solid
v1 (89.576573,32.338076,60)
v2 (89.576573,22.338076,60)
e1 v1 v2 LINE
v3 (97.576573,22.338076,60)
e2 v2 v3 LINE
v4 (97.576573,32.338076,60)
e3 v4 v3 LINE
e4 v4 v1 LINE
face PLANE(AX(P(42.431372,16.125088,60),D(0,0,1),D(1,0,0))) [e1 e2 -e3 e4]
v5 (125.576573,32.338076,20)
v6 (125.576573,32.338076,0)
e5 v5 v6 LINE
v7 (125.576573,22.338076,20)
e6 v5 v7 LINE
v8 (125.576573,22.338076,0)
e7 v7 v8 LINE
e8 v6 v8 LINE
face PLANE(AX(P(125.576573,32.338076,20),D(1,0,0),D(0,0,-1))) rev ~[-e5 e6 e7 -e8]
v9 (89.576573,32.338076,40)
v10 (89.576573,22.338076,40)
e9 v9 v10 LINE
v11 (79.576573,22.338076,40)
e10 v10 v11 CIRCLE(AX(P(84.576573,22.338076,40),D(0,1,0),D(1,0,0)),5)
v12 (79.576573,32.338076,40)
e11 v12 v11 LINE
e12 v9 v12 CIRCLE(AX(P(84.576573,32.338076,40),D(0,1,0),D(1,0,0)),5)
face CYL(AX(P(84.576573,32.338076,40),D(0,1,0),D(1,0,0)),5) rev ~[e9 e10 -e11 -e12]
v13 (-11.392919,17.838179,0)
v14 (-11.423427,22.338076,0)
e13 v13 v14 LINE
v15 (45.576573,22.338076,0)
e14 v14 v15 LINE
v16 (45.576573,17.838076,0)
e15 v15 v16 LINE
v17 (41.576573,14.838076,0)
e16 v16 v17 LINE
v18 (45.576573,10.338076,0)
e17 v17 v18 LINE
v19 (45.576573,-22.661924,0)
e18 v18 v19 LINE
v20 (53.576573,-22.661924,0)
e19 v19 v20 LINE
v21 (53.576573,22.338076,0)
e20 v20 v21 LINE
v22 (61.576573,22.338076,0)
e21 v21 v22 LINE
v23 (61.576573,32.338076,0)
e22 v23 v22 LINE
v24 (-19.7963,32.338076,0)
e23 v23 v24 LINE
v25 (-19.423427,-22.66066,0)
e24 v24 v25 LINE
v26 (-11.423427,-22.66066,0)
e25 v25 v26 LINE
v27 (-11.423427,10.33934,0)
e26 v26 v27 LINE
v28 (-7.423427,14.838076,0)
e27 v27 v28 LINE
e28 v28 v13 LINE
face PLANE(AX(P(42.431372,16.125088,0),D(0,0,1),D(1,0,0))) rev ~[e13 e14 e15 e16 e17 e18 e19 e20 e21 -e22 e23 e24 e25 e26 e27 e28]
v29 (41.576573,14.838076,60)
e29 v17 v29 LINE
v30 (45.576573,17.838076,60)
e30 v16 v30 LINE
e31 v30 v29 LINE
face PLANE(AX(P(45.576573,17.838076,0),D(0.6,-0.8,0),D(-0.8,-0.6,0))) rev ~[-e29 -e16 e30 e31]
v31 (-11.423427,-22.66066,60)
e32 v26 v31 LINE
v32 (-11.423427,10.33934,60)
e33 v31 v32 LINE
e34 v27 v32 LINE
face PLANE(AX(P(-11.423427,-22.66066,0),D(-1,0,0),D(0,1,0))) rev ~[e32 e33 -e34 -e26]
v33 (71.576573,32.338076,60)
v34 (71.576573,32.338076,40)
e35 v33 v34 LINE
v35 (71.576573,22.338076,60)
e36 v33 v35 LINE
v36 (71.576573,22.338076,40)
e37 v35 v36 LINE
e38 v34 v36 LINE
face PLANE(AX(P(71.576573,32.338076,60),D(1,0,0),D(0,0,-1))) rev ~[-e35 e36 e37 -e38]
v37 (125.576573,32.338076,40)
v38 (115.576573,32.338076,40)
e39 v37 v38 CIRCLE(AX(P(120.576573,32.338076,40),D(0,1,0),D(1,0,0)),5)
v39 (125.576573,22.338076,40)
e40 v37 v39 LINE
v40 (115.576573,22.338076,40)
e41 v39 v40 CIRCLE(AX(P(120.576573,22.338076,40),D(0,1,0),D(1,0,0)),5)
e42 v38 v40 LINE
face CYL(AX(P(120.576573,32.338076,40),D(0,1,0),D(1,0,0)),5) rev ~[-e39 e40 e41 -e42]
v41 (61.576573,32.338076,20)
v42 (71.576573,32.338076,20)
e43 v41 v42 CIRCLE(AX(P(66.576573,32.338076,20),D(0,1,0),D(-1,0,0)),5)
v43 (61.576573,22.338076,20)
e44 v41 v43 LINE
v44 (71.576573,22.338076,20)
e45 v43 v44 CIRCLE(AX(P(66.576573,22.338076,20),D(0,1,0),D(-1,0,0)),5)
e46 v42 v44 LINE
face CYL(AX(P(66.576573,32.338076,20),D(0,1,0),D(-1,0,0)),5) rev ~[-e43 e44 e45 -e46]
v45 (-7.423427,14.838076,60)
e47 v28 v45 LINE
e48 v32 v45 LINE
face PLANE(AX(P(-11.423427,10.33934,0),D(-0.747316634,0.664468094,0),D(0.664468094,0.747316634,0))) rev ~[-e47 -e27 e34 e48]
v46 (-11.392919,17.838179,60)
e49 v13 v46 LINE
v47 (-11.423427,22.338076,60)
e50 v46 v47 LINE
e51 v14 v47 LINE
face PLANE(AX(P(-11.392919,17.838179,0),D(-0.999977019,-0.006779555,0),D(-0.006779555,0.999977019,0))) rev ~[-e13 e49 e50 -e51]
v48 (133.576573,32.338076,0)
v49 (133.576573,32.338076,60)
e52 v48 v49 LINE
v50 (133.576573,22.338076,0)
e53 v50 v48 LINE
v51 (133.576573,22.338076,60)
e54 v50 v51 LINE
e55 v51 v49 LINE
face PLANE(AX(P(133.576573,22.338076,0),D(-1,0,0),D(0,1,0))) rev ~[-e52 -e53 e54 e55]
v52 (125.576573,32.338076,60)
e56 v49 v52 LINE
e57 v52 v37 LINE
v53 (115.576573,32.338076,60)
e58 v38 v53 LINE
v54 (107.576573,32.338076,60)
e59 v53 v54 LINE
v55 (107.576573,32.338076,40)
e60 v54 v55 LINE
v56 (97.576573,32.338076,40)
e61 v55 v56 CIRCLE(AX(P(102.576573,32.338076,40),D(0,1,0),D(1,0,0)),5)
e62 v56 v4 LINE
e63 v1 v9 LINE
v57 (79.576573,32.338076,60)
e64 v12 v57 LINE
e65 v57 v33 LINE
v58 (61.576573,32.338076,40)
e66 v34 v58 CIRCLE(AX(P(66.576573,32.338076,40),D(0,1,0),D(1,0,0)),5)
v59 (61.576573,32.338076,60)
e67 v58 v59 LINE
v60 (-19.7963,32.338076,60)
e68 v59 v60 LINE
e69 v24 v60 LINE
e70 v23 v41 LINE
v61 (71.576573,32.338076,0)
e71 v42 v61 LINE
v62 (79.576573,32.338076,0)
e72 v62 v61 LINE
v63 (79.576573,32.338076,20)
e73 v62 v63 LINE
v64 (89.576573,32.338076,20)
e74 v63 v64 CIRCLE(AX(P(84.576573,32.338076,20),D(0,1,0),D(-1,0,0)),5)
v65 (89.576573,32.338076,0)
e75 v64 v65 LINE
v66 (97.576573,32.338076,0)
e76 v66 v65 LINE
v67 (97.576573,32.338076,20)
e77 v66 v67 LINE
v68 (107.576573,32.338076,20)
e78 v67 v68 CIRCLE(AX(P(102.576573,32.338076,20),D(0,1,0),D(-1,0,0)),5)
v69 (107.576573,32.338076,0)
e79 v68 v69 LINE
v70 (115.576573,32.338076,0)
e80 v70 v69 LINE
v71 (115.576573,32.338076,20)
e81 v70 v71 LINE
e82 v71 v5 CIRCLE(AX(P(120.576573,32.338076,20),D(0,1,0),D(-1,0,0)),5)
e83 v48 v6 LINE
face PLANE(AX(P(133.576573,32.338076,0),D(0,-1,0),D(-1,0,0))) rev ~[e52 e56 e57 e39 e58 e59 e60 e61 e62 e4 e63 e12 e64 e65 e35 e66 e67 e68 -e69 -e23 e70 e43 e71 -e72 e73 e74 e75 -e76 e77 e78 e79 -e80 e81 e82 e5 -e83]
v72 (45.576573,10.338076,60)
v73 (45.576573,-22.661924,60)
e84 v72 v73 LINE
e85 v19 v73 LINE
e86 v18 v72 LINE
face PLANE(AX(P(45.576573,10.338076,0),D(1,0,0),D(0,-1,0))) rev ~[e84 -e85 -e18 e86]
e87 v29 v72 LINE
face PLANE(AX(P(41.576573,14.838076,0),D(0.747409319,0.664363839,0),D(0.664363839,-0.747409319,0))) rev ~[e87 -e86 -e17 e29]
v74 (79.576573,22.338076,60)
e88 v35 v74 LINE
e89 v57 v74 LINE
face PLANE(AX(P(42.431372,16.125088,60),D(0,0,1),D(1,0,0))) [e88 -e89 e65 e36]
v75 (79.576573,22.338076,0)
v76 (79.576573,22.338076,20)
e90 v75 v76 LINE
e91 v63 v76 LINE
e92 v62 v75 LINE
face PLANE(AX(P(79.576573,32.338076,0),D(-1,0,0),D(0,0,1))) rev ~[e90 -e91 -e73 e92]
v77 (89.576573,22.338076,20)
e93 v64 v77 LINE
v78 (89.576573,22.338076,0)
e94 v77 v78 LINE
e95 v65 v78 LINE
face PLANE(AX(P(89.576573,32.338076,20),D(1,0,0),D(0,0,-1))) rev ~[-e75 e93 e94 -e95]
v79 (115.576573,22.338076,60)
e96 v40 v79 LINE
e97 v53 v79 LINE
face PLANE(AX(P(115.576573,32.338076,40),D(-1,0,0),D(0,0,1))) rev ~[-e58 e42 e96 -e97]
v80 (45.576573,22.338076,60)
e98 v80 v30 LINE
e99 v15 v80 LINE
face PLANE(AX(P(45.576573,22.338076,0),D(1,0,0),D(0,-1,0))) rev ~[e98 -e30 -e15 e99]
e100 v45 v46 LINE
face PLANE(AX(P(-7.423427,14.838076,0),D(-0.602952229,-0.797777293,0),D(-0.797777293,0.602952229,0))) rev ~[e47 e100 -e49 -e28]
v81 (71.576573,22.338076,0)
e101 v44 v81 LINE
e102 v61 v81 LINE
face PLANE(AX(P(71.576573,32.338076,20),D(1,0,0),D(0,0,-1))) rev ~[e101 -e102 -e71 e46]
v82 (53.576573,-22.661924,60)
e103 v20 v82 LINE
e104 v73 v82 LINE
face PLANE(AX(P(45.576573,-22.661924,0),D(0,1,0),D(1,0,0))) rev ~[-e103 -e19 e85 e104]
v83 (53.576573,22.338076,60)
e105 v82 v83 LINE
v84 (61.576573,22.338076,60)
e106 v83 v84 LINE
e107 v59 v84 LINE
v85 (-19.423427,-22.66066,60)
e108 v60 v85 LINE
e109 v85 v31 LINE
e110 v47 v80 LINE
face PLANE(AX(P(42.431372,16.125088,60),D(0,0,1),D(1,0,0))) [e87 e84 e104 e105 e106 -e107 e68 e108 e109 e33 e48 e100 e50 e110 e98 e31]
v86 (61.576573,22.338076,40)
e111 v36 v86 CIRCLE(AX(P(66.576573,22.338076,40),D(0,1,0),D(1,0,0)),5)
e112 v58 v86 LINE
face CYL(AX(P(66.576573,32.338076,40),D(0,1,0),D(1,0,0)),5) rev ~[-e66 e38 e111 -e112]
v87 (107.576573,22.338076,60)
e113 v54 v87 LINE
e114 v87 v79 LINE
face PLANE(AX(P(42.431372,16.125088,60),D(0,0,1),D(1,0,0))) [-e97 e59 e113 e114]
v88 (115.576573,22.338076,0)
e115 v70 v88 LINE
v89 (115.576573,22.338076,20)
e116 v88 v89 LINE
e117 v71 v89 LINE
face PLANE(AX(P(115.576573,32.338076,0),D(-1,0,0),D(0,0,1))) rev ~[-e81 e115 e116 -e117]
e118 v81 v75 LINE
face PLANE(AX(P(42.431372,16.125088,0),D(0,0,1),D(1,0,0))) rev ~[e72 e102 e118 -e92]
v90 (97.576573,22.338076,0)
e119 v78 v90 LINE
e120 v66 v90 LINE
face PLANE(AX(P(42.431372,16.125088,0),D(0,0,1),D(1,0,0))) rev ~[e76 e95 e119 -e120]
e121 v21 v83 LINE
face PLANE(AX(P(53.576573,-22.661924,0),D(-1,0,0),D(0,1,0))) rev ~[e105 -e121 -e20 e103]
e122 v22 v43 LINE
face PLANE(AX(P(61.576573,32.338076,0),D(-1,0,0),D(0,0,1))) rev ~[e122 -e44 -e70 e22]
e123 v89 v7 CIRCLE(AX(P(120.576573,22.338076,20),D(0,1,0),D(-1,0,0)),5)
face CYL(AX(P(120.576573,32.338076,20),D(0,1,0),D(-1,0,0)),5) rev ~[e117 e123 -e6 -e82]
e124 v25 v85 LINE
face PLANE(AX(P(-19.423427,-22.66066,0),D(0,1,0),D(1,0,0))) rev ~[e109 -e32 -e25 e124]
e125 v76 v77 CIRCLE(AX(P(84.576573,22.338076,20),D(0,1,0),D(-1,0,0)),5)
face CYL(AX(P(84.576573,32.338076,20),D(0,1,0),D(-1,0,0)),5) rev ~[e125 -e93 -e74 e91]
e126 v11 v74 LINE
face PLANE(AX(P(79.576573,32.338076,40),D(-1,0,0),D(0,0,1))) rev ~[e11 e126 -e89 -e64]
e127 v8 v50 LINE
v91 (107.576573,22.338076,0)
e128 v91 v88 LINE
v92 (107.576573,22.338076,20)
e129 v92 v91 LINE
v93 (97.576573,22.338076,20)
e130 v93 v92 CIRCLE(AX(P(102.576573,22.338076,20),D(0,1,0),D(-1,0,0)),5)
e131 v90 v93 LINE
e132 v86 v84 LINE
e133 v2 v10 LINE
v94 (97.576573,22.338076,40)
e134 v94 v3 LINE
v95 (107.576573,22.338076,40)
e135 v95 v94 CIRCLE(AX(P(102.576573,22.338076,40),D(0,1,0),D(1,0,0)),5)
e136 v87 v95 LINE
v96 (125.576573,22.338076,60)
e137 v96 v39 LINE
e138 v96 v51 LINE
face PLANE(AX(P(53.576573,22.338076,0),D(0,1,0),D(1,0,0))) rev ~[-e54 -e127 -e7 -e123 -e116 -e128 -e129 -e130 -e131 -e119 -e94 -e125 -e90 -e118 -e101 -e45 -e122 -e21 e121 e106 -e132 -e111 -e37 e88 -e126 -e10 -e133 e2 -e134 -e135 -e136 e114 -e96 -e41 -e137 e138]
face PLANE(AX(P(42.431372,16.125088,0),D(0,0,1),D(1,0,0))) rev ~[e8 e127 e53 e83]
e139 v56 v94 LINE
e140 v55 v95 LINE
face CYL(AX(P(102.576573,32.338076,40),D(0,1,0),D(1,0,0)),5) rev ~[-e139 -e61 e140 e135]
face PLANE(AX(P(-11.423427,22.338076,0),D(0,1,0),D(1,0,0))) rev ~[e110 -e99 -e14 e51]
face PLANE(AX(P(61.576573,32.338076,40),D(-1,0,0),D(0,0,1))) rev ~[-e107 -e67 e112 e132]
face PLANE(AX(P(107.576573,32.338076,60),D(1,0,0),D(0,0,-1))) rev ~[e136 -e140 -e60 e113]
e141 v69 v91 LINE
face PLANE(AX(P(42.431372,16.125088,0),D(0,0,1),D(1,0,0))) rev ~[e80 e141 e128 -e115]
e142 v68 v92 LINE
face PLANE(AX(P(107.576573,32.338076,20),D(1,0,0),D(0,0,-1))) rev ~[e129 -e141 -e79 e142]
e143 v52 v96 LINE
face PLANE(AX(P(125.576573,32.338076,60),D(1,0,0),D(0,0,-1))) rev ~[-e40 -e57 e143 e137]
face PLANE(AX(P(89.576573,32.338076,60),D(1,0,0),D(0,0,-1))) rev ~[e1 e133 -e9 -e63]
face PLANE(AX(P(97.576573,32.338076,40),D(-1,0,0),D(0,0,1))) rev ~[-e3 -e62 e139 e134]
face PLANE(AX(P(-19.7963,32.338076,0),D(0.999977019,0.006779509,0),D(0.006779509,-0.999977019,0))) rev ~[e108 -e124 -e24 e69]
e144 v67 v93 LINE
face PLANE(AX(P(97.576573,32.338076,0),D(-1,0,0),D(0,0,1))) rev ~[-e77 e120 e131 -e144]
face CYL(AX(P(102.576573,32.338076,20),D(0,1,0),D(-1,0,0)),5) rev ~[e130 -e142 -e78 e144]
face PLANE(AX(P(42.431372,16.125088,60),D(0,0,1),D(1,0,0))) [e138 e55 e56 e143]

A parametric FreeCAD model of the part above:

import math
import FreeCAD as App
import Part
import Sketcher

doc = App.newDocument("Part")
params = doc.addObject("Spreadsheet::Sheet", "Params")
for row, (alias, value) in enumerate([
    ("sketch1_width", "8 mm"),
    ("sketch1_width2", "57 mm"),
    ("sketch1_width3", "80 mm"),
    ("sketch1_height", "33 mm"),
    ("sketch1_height2", "45 mm"),
    ("pad1_length", "60 mm"),
    ("sketch2_radius", "5 mm"),
    ("sketch2_height", "20 mm"),
    ("pocket1_length", "11 mm"),
], start=1):
    params.set(f"A{row}", alias)
    params.set(f"B{row}", "=" + value)
    params.setAlias(f"B{row}", alias)

body = doc.addObject("PartDesign::Body", "Body")

sketch1 = body.newObject("Sketcher::SketchObject", "Sketch")
sketch1.AttachmentSupport = (doc.getObject("XY_Plane"), [""])
sketch1.MapMode = "FlatFace"
sketch1.addGeometry([
    Part.LineSegment(App.Vector(-19.8, 32.3, 0), App.Vector(-19.4, -22.7, 0)),
    Part.LineSegment(App.Vector(-19.4, -22.7, 0), App.Vector(-11.4, -22.7, 0)),
    Part.LineSegment(App.Vector(-11.4, -22.7, 0), App.Vector(-11.4, 10.3, 0)),
    Part.LineSegment(App.Vector(-11.4, 10.3, 0), App.Vector(-7.4, 14.8, 0)),
    Part.LineSegment(App.Vector(-7.4, 14.8, 0), App.Vector(-11.4, 17.8, 0)),
    Part.LineSegment(App.Vector(-11.4, 17.8, 0), App.Vector(-11.4, 22.3, 0)),
    Part.LineSegment(App.Vector(-11.4, 22.3, 0), App.Vector(45.6, 22.3, 0)),
    Part.LineSegment(App.Vector(45.6, 22.3, 0), App.Vector(45.6, 17.8, 0)),
    Part.LineSegment(App.Vector(45.6, 17.8, 0), App.Vector(41.6, 14.8, 0)),
    Part.LineSegment(App.Vector(41.6, 14.8, 0), App.Vector(45.6, 10.3, 0)),
    Part.LineSegment(App.Vector(45.6, 10.3, 0), App.Vector(45.6, -22.7, 0)),
    Part.LineSegment(App.Vector(45.6, -22.7, 0), App.Vector(53.6, -22.7, 0)),
    Part.LineSegment(App.Vector(53.6, -22.7, 0), App.Vector(53.6, 22.3, 0)),
    Part.LineSegment(App.Vector(53.6, 22.3, 0), App.Vector(133.6, 22.3, 0)),
    Part.LineSegment(App.Vector(133.6, 22.3, 0), App.Vector(133.6, 32.3, 0)),
    Part.LineSegment(App.Vector(133.6, 32.3, 0), App.Vector(-19.8, 32.3, 0)),
], False)
sketch1.addConstraint([
    Sketcher.Constraint("Coincident", 0, 2, 1, 1),
    Sketcher.Constraint("Coincident", 1, 2, 2, 1),
    Sketcher.Constraint("Coincident", 2, 2, 3, 1),
    Sketcher.Constraint("Coincident", 3, 2, 4, 1),
    Sketcher.Constraint("Coincident", 4, 2, 5, 1),
    Sketcher.Constraint("Coincident", 5, 2, 6, 1),
    Sketcher.Constraint("Coincident", 6, 2, 7, 1),
    Sketcher.Constraint("Coincident", 7, 2, 8, 1),
    Sketcher.Constraint("Coincident", 8, 2, 9, 1),
    Sketcher.Constraint("Coincident", 9, 2, 10, 1),
    Sketcher.Constraint("Coincident", 10, 2, 11, 1),
    Sketcher.Constraint("Coincident", 11, 2, 12, 1),
    Sketcher.Constraint("Coincident", 12, 2, 13, 1),
    Sketcher.Constraint("Coincident", 13, 2, 14, 1),
    Sketcher.Constraint("Coincident", 14, 2, 15, 1),
    Sketcher.Constraint("Coincident", 15, 2, 0, 1),
    Sketcher.Constraint("Horizontal", 1),
    Sketcher.Constraint("Vertical", 2),
    Sketcher.Constraint("Horizontal", 6),
    Sketcher.Constraint("Vertical", 7),
    Sketcher.Constraint("Vertical", 10),
    Sketcher.Constraint("Horizontal", 11),
    Sketcher.Constraint("Vertical", 12),
    Sketcher.Constraint("Horizontal", 13),
    Sketcher.Constraint("Vertical", 14),
    Sketcher.Constraint("Horizontal", 15),
    Sketcher.Constraint("Parallel", 0, 5),
    Sketcher.Constraint("Horizontal", 3, 2, 8, 2),
    Sketcher.Constraint("Horizontal", 6, 2, 12, 2),
    Sketcher.Constraint("Vertical", 2, 2, 5, 2),
    Sketcher.Constraint("Vertical", 7, 2, 9, 2),
    Sketcher.Constraint("Equal", 1, 11),
    Sketcher.Constraint("Equal", 2, 10),
    Sketcher.Constraint("DistanceX", 1, 1, 1, 2, 8.0),
    Sketcher.Constraint("DistanceX", 6, 1, 6, 2, 57.0),
    Sketcher.Constraint("DistanceX", 13, 1, 13, 2, 80.0),
    Sketcher.Constraint("DistanceY", 2, 1, 2, 2, 33.0),
    Sketcher.Constraint("DistanceY", 12, 1, 12, 2, 45.0),
    Sketcher.Constraint("DistanceY", 14, 1, 14, 2, 10.0),
    Sketcher.Constraint("Distance", 0, 55.0),
    Sketcher.Constraint("Distance", 8, 5.0),
    Sketcher.Constraint("DistanceY", 7, 2, 7, 1, 4.5),
    Sketcher.Constraint("DistanceX", 2, 2, 3, 2, 4.0),
    Sketcher.Constraint("DistanceY", 3, 2, 7, 2, 3.0),
    Sketcher.Constraint("Distance", 5, 4.5),
    Sketcher.Constraint("DistanceX", 15, 2, -1, 1, 19.7963),
    Sketcher.Constraint("Distance", 4, 4.975689),
    Sketcher.Constraint("DistanceY", 0, 2, -1, 1, 22.66066),
])
sketch1.setExpression("Constraints[33]", "Params.sketch1_width")
sketch1.setExpression("Constraints[34]", "Params.sketch1_width2")
sketch1.setExpression("Constraints[35]", "Params.sketch1_width3")
sketch1.setExpression("Constraints[36]", "Params.sketch1_height")
sketch1.setExpression("Constraints[37]", "Params.sketch1_height2")
pad1 = body.newObject("PartDesign::Pad", "Pad")
pad1.Profile = sketch1
pad1.setExpression("Length", "Params.pad1_length")

sketch2 = body.newObject("Sketcher::SketchObject", "Sketch001")
sketch2.AttachmentSupport = (doc.getObject("XZ_Plane"), [""])
sketch2.MapMode = "FlatFace"
sketch2.AttachmentOffset = App.Placement(App.Vector(0, 0, -32.338076), App.Rotation())
sketch2.addGeometry([
    Part.LineSegment(App.Vector(116, 60, 0), App.Vector(126, 60, 0)),
    Part.LineSegment(App.Vector(126, 60, 0), App.Vector(126, 40, 0)),
    Part.ArcOfCircle(Part.Circle(App.Vector(121, 40, 0), App.Vector(0, 0, 1), 5), math.radians(180), math.radians(360)),
    Part.LineSegment(App.Vector(116, 40, 0), App.Vector(116, 60, 0)),
    Part.LineSegment(App.Vector(98, 60, 0), App.Vector(108, 60, 0)),
    Part.LineSegment(App.Vector(108, 60, 0), App.Vector(108, 40, 0)),
    Part.ArcOfCircle(Part.Circle(App.Vector(103, 40, 0), App.Vector(0, 0, 1), 5), math.radians(180), math.radians(360)),
    Part.LineSegment(App.Vector(98, 40, 0), App.Vector(98, 60, 0)),
    Part.LineSegment(App.Vector(80, 60, 0), App.Vector(90, 60, 0)),
    Part.LineSegment(App.Vector(90, 60, 0), App.Vector(90, 40, 0)),
    Part.ArcOfCircle(Part.Circle(App.Vector(85, 40, 0), App.Vector(0, 0, 1), 5), math.radians(180), math.radians(360)),
    Part.LineSegment(App.Vector(80, 40, 0), App.Vector(80, 60, 0)),
    Part.LineSegment(App.Vector(62, 60, 0), App.Vector(72, 60, 0)),
    Part.LineSegment(App.Vector(72, 60, 0), App.Vector(72, 40, 0)),
    Part.ArcOfCircle(Part.Circle(App.Vector(67, 40, 0), App.Vector(0, 0, 1), 5), math.radians(180), math.radians(360)),
    Part.LineSegment(App.Vector(62, 40, 0), App.Vector(62, 60, 0)),
    Part.LineSegment(App.Vector(90, 0, 0), App.Vector(80, 0, 0)),
    Part.LineSegment(App.Vector(80, 0, 0), App.Vector(80, 20, 0)),
    Part.ArcOfCircle(Part.Circle(App.Vector(85, 20, 0), App.Vector(0, 0, 1), 5), math.radians(0), math.radians(180)),
    Part.LineSegment(App.Vector(90, 20, 0), App.Vector(90, 0, 0)),
    Part.LineSegment(App.Vector(72, 20, 0), App.Vector(72, 0, 0)),
    Part.LineSegment(App.Vector(72, 0, 0), App.Vector(62, 0, 0)),
    Part.LineSegment(App.Vector(62, 0, 0), App.Vector(62, 20, 0)),
    Part.ArcOfCircle(Part.Circle(App.Vector(67, 20, 0), App.Vector(0, 0, 1), 5), math.radians(0), math.radians(180)),
    Part.LineSegment(App.Vector(108, 0, 0), App.Vector(98, 0, 0)),
    Part.LineSegment(App.Vector(98, 0, 0), App.Vector(98, 20, 0)),
    Part.ArcOfCircle(Part.Circle(App.Vector(103, 20, 0), App.Vector(0, 0, 1), 5), math.radians(0), math.radians(180)),
    Part.LineSegment(App.Vector(108, 20, 0), App.Vector(108, 0, 0)),
    Part.LineSegment(App.Vector(126, 20, 0), App.Vector(126, 0, 0)),
    Part.LineSegment(App.Vector(126, 0, 0), App.Vector(116, 0, 0)),
    Part.LineSegment(App.Vector(116, 0, 0), App.Vector(116, 20, 0)),
    Part.ArcOfCircle(Part.Circle(App.Vector(121, 20, 0), App.Vector(0, 0, 1), 5), math.radians(0), math.radians(180)),
], False)
sketch2.addConstraint([
    Sketcher.Constraint("Coincident", 0, 2, 1, 1),
    Sketcher.Constraint("Tangent", 1, 2, 2, 2),
    Sketcher.Constraint("Tangent", 2, 1, 3, 1),
    Sketcher.Constraint("Coincident", 3, 2, 0, 1),
    Sketcher.Constraint("Coincident", 4, 2, 5, 1),
    Sketcher.Constraint("Tangent", 5, 2, 6, 2),
    Sketcher.Constraint("Tangent", 6, 1, 7, 1),
    Sketcher.Constraint("Coincident", 7, 2, 4, 1),
    Sketcher.Constraint("Coincident", 8, 2, 9, 1),
    Sketcher.Constraint("Tangent", 9, 2, 10, 2),
    Sketcher.Constraint("Tangent", 10, 1, 11, 1),
    Sketcher.Constraint("Coincident", 11, 2, 8, 1),
    Sketcher.Constraint("Coincident", 12, 2, 13, 1),
    Sketcher.Constraint("Tangent", 13, 2, 14, 2),
    Sketcher.Constraint("Tangent", 14, 1, 15, 1),
    Sketcher.Constraint("Coincident", 15, 2, 12, 1),
    Sketcher.Constraint("Coincident", 16, 2, 17, 1),
    Sketcher.Constraint("Tangent", 17, 2, 18, 2),
    Sketcher.Constraint("Tangent", 18, 1, 19, 1),
    Sketcher.Constraint("Coincident", 19, 2, 16, 1),
    Sketcher.Constraint("Coincident", 20, 2, 21, 1),
    Sketcher.Constraint("Coincident", 21, 2, 22, 1),
    Sketcher.Constraint("Tangent", 22, 2, 23, 2),
    Sketcher.Constraint("Tangent", 23, 1, 20, 1),
    Sketcher.Constraint("Coincident", 24, 2, 25, 1),
    Sketcher.Constraint("Tangent", 25, 2, 26, 2),
    Sketcher.Constraint("Tangent", 26, 1, 27, 1),
    Sketcher.Constraint("Coincident", 27, 2, 24, 1),
    Sketcher.Constraint("Coincident", 28, 2, 29, 1),
    Sketcher.Constraint("Coincident", 29, 2, 30, 1),
    Sketcher.Constraint("Tangent", 30, 2, 31, 2),
    Sketcher.Constraint("Tangent", 31, 1, 28, 1),
    Sketcher.Constraint("Horizontal", 0),
    Sketcher.Constraint("Vertical", 1),
    Sketcher.Constraint("Vertical", 3),
    Sketcher.Constraint("Horizontal", 4),
    Sketcher.Constraint("Vertical", 5),
    Sketcher.Constraint("Vertical", 7),
    Sketcher.Constraint("Horizontal", 8),
    Sketcher.Constraint("Vertical", 9),
    Sketcher.Constraint("Vertical", 11),
    Sketcher.Constraint("Horizontal", 12),
    Sketcher.Constraint("Vertical", 13),
    Sketcher.Constraint("Vertical", 15),
    Sketcher.Constraint("Horizontal", 16),
    Sketcher.Constraint("Vertical", 17),
    Sketcher.Constraint("Vertical", 19),
    Sketcher.Constraint("Vertical", 20),
    Sketcher.Constraint("Horizontal", 21),
    Sketcher.Constraint("Vertical", 22),
    Sketcher.Constraint("Horizontal", 24),
    Sketcher.Constraint("Vertical", 25),
    Sketcher.Constraint("Vertical", 27),
    Sketcher.Constraint("Vertical", 28),
    Sketcher.Constraint("Horizontal", 29),
    Sketcher.Constraint("Vertical", 30),
    Sketcher.Constraint("Equal", 2, 6),
    Sketcher.Constraint("Equal", 6, 10),
    Sketcher.Constraint("Equal", 10, 14),
    Sketcher.Constraint("Equal", 14, 18),
    Sketcher.Constraint("Equal", 18, 23),
    Sketcher.Constraint("Equal", 23, 26),
    Sketcher.Constraint("Equal", 26, 31),
    Sketcher.Constraint("PointOnObject", 16, 2, -1),
    Sketcher.Constraint("PointOnObject", 20, 2, -1),
    Sketcher.Constraint("PointOnObject", 24, 2, -1),
    Sketcher.Constraint("PointOnObject", 28, 2, -1),
    Sketcher.Constraint("Horizontal", 2, 3, 6, 3),
    Sketcher.Constraint("Horizontal", 6, 3, 10, 3),
    Sketcher.Constraint("Horizontal", 10, 3, 14, 3),
    Sketcher.Constraint("Horizontal", 18, 3, 23, 3),
    Sketcher.Constraint("Horizontal", 23, 3, 26, 3),
    Sketcher.Constraint("Horizontal", 26, 3, 31, 3),
    Sketcher.Constraint("Horizontal", 3, 2, 4, 2),
    Sketcher.Constraint("Horizontal", 7, 2, 8, 2),
    Sketcher.Constraint("Horizontal", 11, 2, 12, 2),
    Sketcher.Constraint("Vertical", 10, 3, 18, 3),
    Sketcher.Constraint("Vertical", 14, 3, 23, 3),
    Sketcher.Constraint("Vertical", 6, 3, 26, 3),
    Sketcher.Constraint("Vertical", 2, 3, 31, 3),
    Sketcher.Constraint("Equal", 15, 17),
    Sketcher.Constraint("Radius", 2, 5.0),
    Sketcher.Constraint("DistanceY", 1, 2, 1, 1, 20.0),
    Sketcher.Constraint("DistanceY", -1, 1, 2, 3, 40.0),
    Sketcher.Constraint("DistanceX", 6, 3, 2, 3, 18.0),
    Sketcher.Constraint("DistanceX", 10, 3, 6, 3, 18.0),
    Sketcher.Constraint("DistanceX", 14, 3, 10, 3, 18.0),
    Sketcher.Constraint("DistanceX", -1, 1, 2, 3, 120.576573),
])
sketch2.setExpression("Constraints[81]", "Params.sketch2_radius")
sketch2.setExpression("Constraints[82]", "Params.sketch2_height")
pocket1 = body.newObject("PartDesign::Pocket", "Pocket")
pocket1.Profile = sketch2
pocket1.setExpression("Length", "Params.pocket1_length")
pocket1.Reversed = True

doc.recompute()
